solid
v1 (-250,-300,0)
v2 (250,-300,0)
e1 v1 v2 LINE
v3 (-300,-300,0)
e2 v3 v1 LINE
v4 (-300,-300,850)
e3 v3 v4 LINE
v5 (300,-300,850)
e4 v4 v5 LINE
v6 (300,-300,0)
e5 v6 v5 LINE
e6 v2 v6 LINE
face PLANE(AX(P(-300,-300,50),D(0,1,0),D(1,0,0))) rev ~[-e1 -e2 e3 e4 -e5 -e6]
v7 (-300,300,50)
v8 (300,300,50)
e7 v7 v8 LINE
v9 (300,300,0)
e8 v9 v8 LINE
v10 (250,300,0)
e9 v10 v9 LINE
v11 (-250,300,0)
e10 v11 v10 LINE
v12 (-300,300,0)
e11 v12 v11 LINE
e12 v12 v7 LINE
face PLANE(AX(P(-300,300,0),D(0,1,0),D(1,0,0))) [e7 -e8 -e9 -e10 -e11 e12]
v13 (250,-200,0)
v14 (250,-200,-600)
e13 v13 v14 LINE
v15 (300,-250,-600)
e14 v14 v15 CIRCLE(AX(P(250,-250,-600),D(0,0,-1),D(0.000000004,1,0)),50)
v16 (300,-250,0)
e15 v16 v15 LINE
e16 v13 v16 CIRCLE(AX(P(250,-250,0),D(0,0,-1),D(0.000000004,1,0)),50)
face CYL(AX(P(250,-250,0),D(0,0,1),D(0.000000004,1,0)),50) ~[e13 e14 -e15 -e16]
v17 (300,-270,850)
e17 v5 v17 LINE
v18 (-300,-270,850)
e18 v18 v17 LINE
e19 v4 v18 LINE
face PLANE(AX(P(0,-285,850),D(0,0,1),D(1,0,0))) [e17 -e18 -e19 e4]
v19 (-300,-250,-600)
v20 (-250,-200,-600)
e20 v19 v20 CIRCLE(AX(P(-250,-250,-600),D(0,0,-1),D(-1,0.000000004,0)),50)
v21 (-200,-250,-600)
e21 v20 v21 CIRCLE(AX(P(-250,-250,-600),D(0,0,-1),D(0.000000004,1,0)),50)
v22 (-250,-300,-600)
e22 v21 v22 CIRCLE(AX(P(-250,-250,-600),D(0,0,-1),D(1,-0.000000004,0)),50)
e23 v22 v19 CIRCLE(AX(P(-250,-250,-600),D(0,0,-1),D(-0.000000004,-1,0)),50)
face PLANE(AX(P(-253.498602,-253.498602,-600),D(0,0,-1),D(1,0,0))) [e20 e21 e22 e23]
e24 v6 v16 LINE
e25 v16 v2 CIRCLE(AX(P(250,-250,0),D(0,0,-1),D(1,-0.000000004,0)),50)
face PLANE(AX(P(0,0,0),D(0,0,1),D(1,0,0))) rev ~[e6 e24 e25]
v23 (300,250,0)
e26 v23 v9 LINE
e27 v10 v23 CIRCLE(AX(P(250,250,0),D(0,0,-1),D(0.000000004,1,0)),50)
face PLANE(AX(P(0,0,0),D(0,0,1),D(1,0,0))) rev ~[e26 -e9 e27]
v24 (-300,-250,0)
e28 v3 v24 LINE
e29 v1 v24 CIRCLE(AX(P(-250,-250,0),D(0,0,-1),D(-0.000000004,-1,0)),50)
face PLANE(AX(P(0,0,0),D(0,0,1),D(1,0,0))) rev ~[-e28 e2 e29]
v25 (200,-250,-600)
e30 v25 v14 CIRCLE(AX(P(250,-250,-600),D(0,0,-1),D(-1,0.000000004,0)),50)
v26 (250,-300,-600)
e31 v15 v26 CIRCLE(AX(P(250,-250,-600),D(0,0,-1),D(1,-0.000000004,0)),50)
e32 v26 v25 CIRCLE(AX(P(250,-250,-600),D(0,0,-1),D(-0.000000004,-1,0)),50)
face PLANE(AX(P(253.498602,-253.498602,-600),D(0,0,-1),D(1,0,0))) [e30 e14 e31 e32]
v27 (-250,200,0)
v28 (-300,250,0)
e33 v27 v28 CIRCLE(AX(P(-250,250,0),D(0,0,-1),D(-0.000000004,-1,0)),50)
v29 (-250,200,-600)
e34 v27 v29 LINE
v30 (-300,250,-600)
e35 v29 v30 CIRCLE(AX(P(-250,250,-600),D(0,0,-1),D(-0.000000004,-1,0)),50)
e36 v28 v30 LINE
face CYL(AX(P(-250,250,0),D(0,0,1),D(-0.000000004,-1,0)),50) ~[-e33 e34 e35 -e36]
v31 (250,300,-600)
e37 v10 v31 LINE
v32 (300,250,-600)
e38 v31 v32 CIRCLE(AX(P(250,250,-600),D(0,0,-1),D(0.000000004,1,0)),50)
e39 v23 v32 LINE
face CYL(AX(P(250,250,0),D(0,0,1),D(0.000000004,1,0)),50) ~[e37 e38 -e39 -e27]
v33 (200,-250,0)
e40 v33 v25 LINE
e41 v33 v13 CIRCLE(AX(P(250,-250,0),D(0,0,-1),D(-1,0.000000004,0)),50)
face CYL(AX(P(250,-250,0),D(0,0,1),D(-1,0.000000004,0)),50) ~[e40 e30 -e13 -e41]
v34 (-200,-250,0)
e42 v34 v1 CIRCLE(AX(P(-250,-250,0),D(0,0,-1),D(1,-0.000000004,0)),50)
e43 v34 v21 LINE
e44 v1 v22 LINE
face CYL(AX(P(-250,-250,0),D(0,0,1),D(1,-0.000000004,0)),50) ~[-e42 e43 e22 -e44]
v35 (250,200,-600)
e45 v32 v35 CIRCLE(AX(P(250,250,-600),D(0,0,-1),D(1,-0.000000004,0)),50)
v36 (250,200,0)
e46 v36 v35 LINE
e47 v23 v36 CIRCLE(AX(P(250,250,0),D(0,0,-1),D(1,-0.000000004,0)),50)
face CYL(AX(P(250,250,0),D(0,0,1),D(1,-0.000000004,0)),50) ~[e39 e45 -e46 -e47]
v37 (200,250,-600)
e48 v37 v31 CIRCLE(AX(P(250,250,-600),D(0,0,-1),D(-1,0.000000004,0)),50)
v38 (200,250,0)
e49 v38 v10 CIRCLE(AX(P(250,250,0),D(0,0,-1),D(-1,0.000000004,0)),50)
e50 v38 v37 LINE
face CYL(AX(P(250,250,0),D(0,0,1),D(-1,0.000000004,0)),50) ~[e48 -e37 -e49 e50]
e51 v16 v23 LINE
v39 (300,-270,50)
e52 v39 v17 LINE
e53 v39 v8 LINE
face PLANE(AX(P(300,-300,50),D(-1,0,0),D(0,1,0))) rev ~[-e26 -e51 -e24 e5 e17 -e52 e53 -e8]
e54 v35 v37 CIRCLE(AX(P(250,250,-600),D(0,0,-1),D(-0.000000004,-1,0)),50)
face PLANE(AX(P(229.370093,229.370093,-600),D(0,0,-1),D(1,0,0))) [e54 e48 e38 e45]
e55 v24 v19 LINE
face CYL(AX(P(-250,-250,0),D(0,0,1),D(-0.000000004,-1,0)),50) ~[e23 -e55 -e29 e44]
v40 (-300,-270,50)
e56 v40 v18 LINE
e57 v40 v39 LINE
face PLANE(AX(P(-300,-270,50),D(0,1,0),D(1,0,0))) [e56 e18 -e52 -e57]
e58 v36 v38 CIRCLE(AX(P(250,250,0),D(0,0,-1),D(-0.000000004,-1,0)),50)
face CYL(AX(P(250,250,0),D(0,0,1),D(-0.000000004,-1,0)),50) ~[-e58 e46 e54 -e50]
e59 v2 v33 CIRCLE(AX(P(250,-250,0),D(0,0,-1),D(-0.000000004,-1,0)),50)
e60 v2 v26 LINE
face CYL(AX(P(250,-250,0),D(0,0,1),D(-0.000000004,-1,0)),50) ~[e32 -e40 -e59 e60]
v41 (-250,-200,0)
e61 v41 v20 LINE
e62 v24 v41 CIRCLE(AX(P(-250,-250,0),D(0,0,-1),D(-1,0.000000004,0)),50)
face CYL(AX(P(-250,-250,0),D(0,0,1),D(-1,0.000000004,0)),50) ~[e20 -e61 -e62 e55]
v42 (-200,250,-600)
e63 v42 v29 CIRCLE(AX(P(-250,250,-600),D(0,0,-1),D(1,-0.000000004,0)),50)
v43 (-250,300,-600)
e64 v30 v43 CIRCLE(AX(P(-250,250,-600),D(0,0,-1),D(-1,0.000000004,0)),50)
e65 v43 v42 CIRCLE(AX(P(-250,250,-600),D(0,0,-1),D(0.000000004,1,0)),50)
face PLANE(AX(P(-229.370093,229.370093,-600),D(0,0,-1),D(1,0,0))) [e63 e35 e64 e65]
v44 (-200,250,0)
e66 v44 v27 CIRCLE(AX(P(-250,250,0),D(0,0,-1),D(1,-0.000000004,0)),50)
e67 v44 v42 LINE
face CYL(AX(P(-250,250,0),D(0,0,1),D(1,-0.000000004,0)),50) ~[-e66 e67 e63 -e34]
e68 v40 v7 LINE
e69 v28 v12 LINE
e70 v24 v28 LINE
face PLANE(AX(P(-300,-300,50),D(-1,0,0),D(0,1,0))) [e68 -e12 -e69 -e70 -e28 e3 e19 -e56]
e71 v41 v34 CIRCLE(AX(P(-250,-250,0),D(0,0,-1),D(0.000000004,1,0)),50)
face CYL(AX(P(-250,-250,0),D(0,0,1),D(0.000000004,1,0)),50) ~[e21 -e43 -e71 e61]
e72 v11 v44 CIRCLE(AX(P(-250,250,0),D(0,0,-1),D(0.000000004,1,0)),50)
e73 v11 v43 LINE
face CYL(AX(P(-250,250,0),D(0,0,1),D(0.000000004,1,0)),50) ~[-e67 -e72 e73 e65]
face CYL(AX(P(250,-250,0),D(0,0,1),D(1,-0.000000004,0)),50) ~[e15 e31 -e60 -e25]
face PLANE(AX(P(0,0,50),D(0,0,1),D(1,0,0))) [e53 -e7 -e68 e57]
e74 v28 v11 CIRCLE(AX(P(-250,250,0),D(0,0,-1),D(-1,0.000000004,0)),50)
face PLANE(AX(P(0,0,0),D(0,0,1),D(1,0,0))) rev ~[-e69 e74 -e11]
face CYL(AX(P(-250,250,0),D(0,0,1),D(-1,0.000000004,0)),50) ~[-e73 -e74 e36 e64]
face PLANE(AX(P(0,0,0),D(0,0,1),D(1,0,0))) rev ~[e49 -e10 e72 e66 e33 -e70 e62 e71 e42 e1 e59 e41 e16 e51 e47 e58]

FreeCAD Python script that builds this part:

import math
import FreeCAD as App
import Part
import Sketcher
from FreeCAD import Vector


def add_polygon(sketch, points):
    """Adds a closed chain of lines whose ends are joined by coincident constraints."""
    first, n = sketch.GeometryCount, len(points)
    for a, b in zip(points, points[1:] + points[:1]):
        sketch.addGeometry(Part.LineSegment(App.Vector(*a, 0), App.Vector(*b, 0)), False)
    for i in range(n):
        sketch.addConstraint(Sketcher.Constraint("Coincident", first + i, 2, first + (i + 1) % n, 1))

doc = App.newDocument("Part")
body = doc.addObject("PartDesign::Body", "Body")

# Sketch on XY plane
sketch1 = doc.addObject("Sketcher::SketchObject", "Sketch")
body.addObject(sketch1)
sketch1.AttachmentSupport = (doc.XY_Plane, [""])
sketch1.MapMode = "FlatFace"
add_polygon(sketch1, [(-300, 300), (-300, -300), (300, -300), (300, 300)])  # lines 0-3
sketch1.addConstraint([
    Sketcher.Constraint("Vertical", 0),
    Sketcher.Constraint("Horizontal", 1),
    Sketcher.Constraint("Vertical", 2),
    Sketcher.Constraint("Horizontal", 3),
    Sketcher.Constraint("Symmetric", 0, 2, 2, 2, -1, 1),
    Sketcher.Constraint("Equal", 3, 0),
    Sketcher.Constraint("DistanceX", 1, 1, 1, 2, 600.0),
])
pad1 = doc.addObject("PartDesign::Pad", "Pad")
body.addObject(pad1)
pad1.Profile = sketch1
pad1.Length = 50

# Sketch on XY plane
sketch2 = doc.addObject("Sketcher::SketchObject", "Sketch001")
body.addObject(sketch2)
sketch2.AttachmentSupport = (doc.XY_Plane, [""])
sketch2.MapMode = "FlatFace"
sketch2.AttachmentOffset = App.Placement(Vector(0, 0, 50), App.Rotation())
add_polygon(sketch2, [(-300, -270), (-300, -300), (300, -300), (300, -270)])  # lines 0-3
sketch2.addConstraint([
    Sketcher.Constraint("Vertical", 0),
    Sketcher.Constraint("Horizontal", 1),
    Sketcher.Constraint("Vertical", 2),
    Sketcher.Constraint("Horizontal", 3),
    Sketcher.Constraint("DistanceX", 1, 1, 1, 2, 600.0),
    Sketcher.Constraint("DistanceY", 0, 2, 0, 1, 30.0),
    Sketcher.Constraint("DistanceX", 0, 2, -1, 1, 300.0),
    Sketcher.Constraint("DistanceY", 0, 2, -1, 1, 300.0),
])
pad2 = doc.addObject("PartDesign::Pad", "Pad001")
body.addObject(pad2)
pad2.Profile = sketch2
pad2.Length = 800

# Sketch on XY plane
sketch3 = doc.addObject("Sketcher::SketchObject", "Sketch002")
body.addObject(sketch3)
sketch3.AttachmentSupport = (doc.XY_Plane, [""])
sketch3.MapMode = "FlatFace"
sketch3.addGeometry([
    Part.ArcOfCircle(Part.Circle(Vector(-250, -250, 0), Vector(0, 0, 1), 50), math.radians(-90), math.radians(0)),  # 0
    Part.ArcOfCircle(Part.Circle(Vector(-250, -250, 0), Vector(0, 0, 1), 50), math.radians(-180), math.radians(-90)),  # 1
    Part.ArcOfCircle(Part.Circle(Vector(-250, -250, 0), Vector(0, 0, 1), 50), math.radians(90), math.radians(180)),  # 2
    Part.ArcOfCircle(Part.Circle(Vector(-250, -250, 0), Vector(0, 0, 1), 50), math.radians(0), math.radians(90)),  # 3
    Part.ArcOfCircle(Part.Circle(Vector(250, -250, 0), Vector(0, 0, 1), 50), math.radians(-180), math.radians(-90)),  # 4
    Part.ArcOfCircle(Part.Circle(Vector(250, -250, 0), Vector(0, 0, 1), 50), math.radians(90), math.radians(180)),  # 5
    Part.ArcOfCircle(Part.Circle(Vector(250, -250, 0), Vector(0, 0, 1), 50), math.radians(0), math.radians(90)),  # 6
    Part.ArcOfCircle(Part.Circle(Vector(250, -250, 0), Vector(0, 0, 1), 50), math.radians(-90), math.radians(0)),  # 7
    Part.ArcOfCircle(Part.Circle(Vector(-250, 250, 0), Vector(0, 0, 1), 50), math.radians(-90), math.radians(0)),  # 8
    Part.ArcOfCircle(Part.Circle(Vector(-250, 250, 0), Vector(0, 0, 1), 50), math.radians(-180), math.radians(-90)),  # 9
    Part.ArcOfCircle(Part.Circle(Vector(-250, 250, 0), Vector(0, 0, 1), 50), math.radians(90), math.radians(180)),  # 10
    Part.ArcOfCircle(Part.Circle(Vector(-250, 250, 0), Vector(0, 0, 1), 50), math.radians(0), math.radians(90)),  # 11
    Part.ArcOfCircle(Part.Circle(Vector(250, 250, 0), Vector(0, 0, 1), 50), math.radians(-180), math.radians(-90)),  # 12
    Part.ArcOfCircle(Part.Circle(Vector(250, 250, 0), Vector(0, 0, 1), 50), math.radians(90), math.radians(180)),  # 13
    Part.ArcOfCircle(Part.Circle(Vector(250, 250, 0), Vector(0, 0, 1), 50), math.radians(0), math.radians(90)),  # 14
    Part.ArcOfCircle(Part.Circle(Vector(250, 250, 0), Vector(0, 0, 1), 50), math.radians(-90), math.radians(0)),  # 15
], False)
sketch3.addConstraint([
    Sketcher.Constraint("Tangent", 0, 1, 1, 2),
    Sketcher.Constraint("Tangent", 1, 1, 2, 2),
    Sketcher.Constraint("Tangent", 2, 1, 3, 2),
    Sketcher.Constraint("Tangent", 3, 1, 0, 2),
    Sketcher.Constraint("Tangent", 4, 1, 5, 2),
    Sketcher.Constraint("Tangent", 5, 1, 6, 2),
    Sketcher.Constraint("Tangent", 6, 1, 7, 2),
    Sketcher.Constraint("Tangent", 7, 1, 4, 2),
    Sketcher.Constraint("Tangent", 8, 1, 9, 2),
    Sketcher.Constraint("Tangent", 9, 1, 10, 2),
    Sketcher.Constraint("Tangent", 10, 1, 11, 2),
    Sketcher.Constraint("Tangent", 11, 1, 8, 2),
    Sketcher.Constraint("Tangent", 12, 1, 13, 2),
    Sketcher.Constraint("Tangent", 13, 1, 14, 2),
    Sketcher.Constraint("Tangent", 14, 1, 15, 2),
    Sketcher.Constraint("Tangent", 15, 1, 12, 2),
    Sketcher.Constraint("Equal", 0, 1),
    Sketcher.Constraint("Equal", 3, 4),
    Sketcher.Constraint("Equal", 4, 5),
    Sketcher.Constraint("Equal", 7, 8),
    Sketcher.Constraint("Equal", 8, 9),
    Sketcher.Constraint("Equal", 11, 12),
    Sketcher.Constraint("Equal", 12, 13),
    Sketcher.Constraint("Symmetric", 4, 3, 8, 3, -1, 1),
    Sketcher.Constraint("Symmetric", 0, 3, 12, 3, -1, 1),
    Sketcher.Constraint("Symmetric", 0, 3, 4, 3, -2),
    Sketcher.Constraint("Horizontal", 7, 3, 1, 1),
    Sketcher.Constraint("Horizontal", 1, 1, 3, 1),
    Sketcher.Constraint("Horizontal", 3, 1, 4, 1),
    Sketcher.Constraint("Horizontal", 4, 1, 6, 1),
    Sketcher.Constraint("Horizontal", 15, 3, 9, 1),
    Sketcher.Constraint("Horizontal", 9, 1, 11, 1),
    Sketcher.Constraint("Horizontal", 11, 1, 12, 1),
    Sketcher.Constraint("Horizontal", 12, 1, 14, 1),
    Sketcher.Constraint("Vertical", 11, 3, 0, 1),
    Sketcher.Constraint("Vertical", 0, 1, 2, 1),
    Sketcher.Constraint("Vertical", 15, 3, 5, 1),
    Sketcher.Constraint("Vertical", 5, 1, 7, 1),
    Sketcher.Constraint("Vertical", 2, 1, 8, 1),
    Sketcher.Constraint("Vertical", 8, 1, 10, 1),
    Sketcher.Constraint("Vertical", 7, 1, 13, 1),
    Sketcher.Constraint("Vertical", 13, 1, 15, 1),
    Sketcher.Constraint("Radius", 0, 50.0),
    Sketcher.Constraint("DistanceX", 0, 3, -1, 1, 250.0),
    Sketcher.Constraint("DistanceY", 0, 3, -1, 1, 250.0),
])
pad3 = doc.addObject("PartDesign::Pad", "Pad002")
body.addObject(pad3)
pad3.Profile = sketch3
pad3.Length = 600
pad3.Reversed = True

doc.recompute()
